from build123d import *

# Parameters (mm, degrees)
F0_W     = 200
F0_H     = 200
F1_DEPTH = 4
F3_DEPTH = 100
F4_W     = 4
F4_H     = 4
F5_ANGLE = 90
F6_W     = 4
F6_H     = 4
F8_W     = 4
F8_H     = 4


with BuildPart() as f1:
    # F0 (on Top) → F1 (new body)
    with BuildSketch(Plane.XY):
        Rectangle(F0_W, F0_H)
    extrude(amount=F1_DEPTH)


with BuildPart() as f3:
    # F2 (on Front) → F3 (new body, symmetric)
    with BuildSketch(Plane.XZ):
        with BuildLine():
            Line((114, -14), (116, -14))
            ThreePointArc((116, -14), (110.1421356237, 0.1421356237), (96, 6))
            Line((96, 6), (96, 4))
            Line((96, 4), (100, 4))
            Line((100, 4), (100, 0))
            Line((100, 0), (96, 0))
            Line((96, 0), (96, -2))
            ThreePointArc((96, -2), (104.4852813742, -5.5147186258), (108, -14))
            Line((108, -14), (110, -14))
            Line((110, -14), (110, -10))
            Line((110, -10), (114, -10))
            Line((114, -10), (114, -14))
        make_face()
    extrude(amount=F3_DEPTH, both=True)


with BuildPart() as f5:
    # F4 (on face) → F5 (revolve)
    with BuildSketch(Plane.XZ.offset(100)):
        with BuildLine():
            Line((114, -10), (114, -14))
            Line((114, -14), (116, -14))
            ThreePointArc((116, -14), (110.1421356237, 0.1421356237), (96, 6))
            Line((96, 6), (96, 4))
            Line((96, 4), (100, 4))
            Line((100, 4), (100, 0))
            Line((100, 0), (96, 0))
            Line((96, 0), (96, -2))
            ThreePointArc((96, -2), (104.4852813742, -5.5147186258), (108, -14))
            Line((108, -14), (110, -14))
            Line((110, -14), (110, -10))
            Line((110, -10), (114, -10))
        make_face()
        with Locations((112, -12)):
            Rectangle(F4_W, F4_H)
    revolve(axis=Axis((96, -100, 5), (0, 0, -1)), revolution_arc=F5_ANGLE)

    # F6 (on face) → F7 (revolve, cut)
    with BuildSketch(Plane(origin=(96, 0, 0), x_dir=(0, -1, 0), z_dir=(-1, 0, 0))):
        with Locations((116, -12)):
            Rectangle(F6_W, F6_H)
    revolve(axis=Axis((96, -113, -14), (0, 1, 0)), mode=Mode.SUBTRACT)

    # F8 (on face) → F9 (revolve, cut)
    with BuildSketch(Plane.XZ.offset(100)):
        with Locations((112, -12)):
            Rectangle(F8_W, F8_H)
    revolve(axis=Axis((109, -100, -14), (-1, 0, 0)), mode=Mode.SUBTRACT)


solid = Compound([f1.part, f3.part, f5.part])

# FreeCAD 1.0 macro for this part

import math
import FreeCAD as App
import Part
import Sketcher

V = App.Vector


def add_polygon(sketch, points):
    """Adds a closed chain of lines whose ends are joined by coincident constraints."""
    first, n = sketch.GeometryCount, len(points)
    for a, b in zip(points, points[1:] + points[:1]):
        sketch.addGeometry(Part.LineSegment(App.Vector(*a, 0), App.Vector(*b, 0)), False)
    for i in range(n):
        sketch.addConstraint(Sketcher.Constraint("Coincident", first + i, 2, first + (i + 1) % n, 1))

doc = App.newDocument("Part")
params = doc.addObject("Spreadsheet::Sheet", "Params")
for row, (alias, value) in enumerate([
    ("sketch1_width", "200 mm"),
    ("pad1_length", "4 mm"),
    ("sketch2_radius", "20 mm"),
    ("sketch2_radius2", "12 mm"),
    ("sketch2_width", "2 mm"),
    ("pad2_length", "200 mm"),
    ("sketch3_radius", "20 mm"),
    ("sketch3_radius2", "12 mm"),
    ("sketch3_width", "4 mm"),
    ("revolution_angle", "90 deg"),
    ("sketch4_width", "4 mm"),
    ("groove_angle", "360 deg"),
    ("sketch5_width", "4 mm"),
    ("groove2_angle", "360 deg"),
], start=1):
    params.set(f"A{row}", alias)
    params.set(f"B{row}", "=" + value)
    params.setAlias(f"B{row}", alias)

body = doc.addObject("PartDesign::Body", "Body")

sketch1 = body.newObject("Sketcher::SketchObject", "Sketch")
sketch1.AttachmentSupport = (doc.getObject("XY_Plane"), [""])
sketch1.MapMode = "FlatFace"
add_polygon(sketch1, [(-100, 100), (-100, -100), (100, -100), (100, 100)])
sketch1.addConstraint([
    Sketcher.Constraint("Vertical", 0),
    Sketcher.Constraint("Horizontal", 1),
    Sketcher.Constraint("Vertical", 2),
    Sketcher.Constraint("Horizontal", 3),
    Sketcher.Constraint("Symmetric", 0, 2, 2, 2, -1, 1),
    Sketcher.Constraint("Equal", 3, 0),
    Sketcher.Constraint("DistanceX", 1, 1, 1, 2, 200.0),
])
sketch1.setExpression("Constraints[10]", "Params.sketch1_width")
pad1 = body.newObject("PartDesign::Pad", "Pad")
pad1.Profile = sketch1
pad1.setExpression("Length", "Params.pad1_length")
body2 = doc.addObject("PartDesign::Body", "Body001")

sketch2 = body2.newObject("Sketcher::SketchObject", "Sketch001")
sketch2.AttachmentSupport = (doc.getObject("XZ_Plane001"), [""])
sketch2.MapMode = "FlatFace"
sketch2.addGeometry([
    Part.LineSegment(V(114, -14, 0), V(116, -14, 0)),
    Part.ArcOfCircle(Part.Circle(V(96, -14, 0), V(0, 0, 1), 20), math.radians(0), math.radians(90)),
    Part.LineSegment(V(96, 6, 0), V(96, 4, 0)),
    Part.LineSegment(V(96, 4, 0), V(100, 4, 0)),
    Part.LineSegment(V(100, 4, 0), V(100, 0, 0)),
    Part.LineSegment(V(100, 0, 0), V(96, 0, 0)),
    Part.LineSegment(V(96, 0, 0), V(96, -2, 0)),
    Part.ArcOfCircle(Part.Circle(V(96, -14, 0), V(0, 0, 1), 12), math.radians(0), math.radians(90)),
    Part.LineSegment(V(108, -14, 0), V(110, -14, 0)),
    Part.LineSegment(V(110, -14, 0), V(110, -10, 0)),
    Part.LineSegment(V(110, -10, 0), V(114, -10, 0)),
    Part.LineSegment(V(114, -10, 0), V(114, -14, 0)),
], False)
sketch2.addConstraint([
    Sketcher.Constraint("Coincident", 0, 2, 1, 1),
    Sketcher.Constraint("Coincident", 1, 2, 2, 1),
    Sketcher.Constraint("Coincident", 2, 2, 3, 1),
    Sketcher.Constraint("Coincident", 3, 2, 4, 1),
    Sketcher.Constraint("Coincident", 4, 2, 5, 1),
    Sketcher.Constraint("Coincident", 5, 2, 6, 1),
    Sketcher.Constraint("Coincident", 6, 2, 7, 2),
    Sketcher.Constraint("Coincident", 7, 1, 8, 1),
    Sketcher.Constraint("Coincident", 8, 2, 9, 1),
    Sketcher.Constraint("Coincident", 9, 2, 10, 1),
    Sketcher.Constraint("Coincident", 10, 2, 11, 1),
    Sketcher.Constraint("Coincident", 11, 2, 0, 1),
    Sketcher.Constraint("Horizontal", 0),
    Sketcher.Constraint("Vertical", 2),
    Sketcher.Constraint("Horizontal", 3),
    Sketcher.Constraint("Vertical", 4),
    Sketcher.Constraint("Horizontal", 5),
    Sketcher.Constraint("Vertical", 6),
    Sketcher.Constraint("Horizontal", 8),
    Sketcher.Constraint("Vertical", 9),
    Sketcher.Constraint("Horizontal", 10),
    Sketcher.Constraint("Vertical", 11),
    Sketcher.Constraint("Coincident", 7, 3, 1, 3),
    Sketcher.Constraint("PointOnObject", 4, 2, -1),
    Sketcher.Constraint("Horizontal", 7, 3, 0, 2),
    Sketcher.Constraint("Horizontal", 0, 2, 7, 1),
    Sketcher.Constraint("Vertical", 7, 3, 1, 2),
    Sketcher.Constraint("Vertical", 2, 2, 5, 2),
    Sketcher.Constraint("Equal", 0, 8),
    Sketcher.Constraint("Equal", 5, 10),
    Sketcher.Constraint("Equal", 8, 2),
    Sketcher.Constraint("Equal", 10, 4),
    Sketcher.Constraint("Equal", 4, 9),
    Sketcher.Constraint("Radius", 1, 20.0),
    Sketcher.Constraint("Radius", 7, 12.0),
    Sketcher.Constraint("DistanceX", 0, 1, 0, 2, 2.0),
    Sketcher.Constraint("DistanceX", -1, 1, 1, 3, 96.0),
])
sketch2.setExpression("Constraints[33]", "Params.sketch2_radius")
sketch2.setExpression("Constraints[34]", "Params.sketch2_radius2")
sketch2.setExpression("Constraints[35]", "Params.sketch2_width")
pad2 = body2.newObject("PartDesign::Pad", "Pad001")
pad2.Profile = sketch2
pad2.setExpression("Length", "Params.pad2_length")
pad2.Midplane = True
body3 = doc.addObject("PartDesign::Body", "Body002")

sketch3 = body3.newObject("Sketcher::SketchObject", "Sketch002")
sketch3.AttachmentSupport = (doc.getObject("XZ_Plane002"), [""])
sketch3.MapMode = "FlatFace"
sketch3.AttachmentOffset = App.Placement(V(0, 0, 100), App.Rotation())
sketch3.addGeometry([
    Part.ArcOfCircle(Part.Circle(V(96, -14, 0), V(0, 0, 1), 20), math.radians(0), math.radians(90)),
    Part.LineSegment(V(96, 6, 0), V(96, 4, 0)),
    Part.LineSegment(V(96, 4, 0), V(100, 4, 0)),
    Part.LineSegment(V(100, 4, 0), V(100, 0, 0)),
    Part.LineSegment(V(100, 0, 0), V(96, 0, 0)),
    Part.LineSegment(V(96, 0, 0), V(96, -2, 0)),
    Part.ArcOfCircle(Part.Circle(V(96, -14, 0), V(0, 0, 1), 12), math.radians(0), math.radians(90)),
    Part.LineSegment(V(108, -14, 0), V(116, -14, 0)),
], False)
sketch3.addGeometry(Part.LineSegment(V(96, 6, 0), V(96, -14, 0)), True)
sketch3.addConstraint([
    Sketcher.Constraint("Coincident", 0, 2, 1, 1),
    Sketcher.Constraint("Coincident", 1, 2, 2, 1),
    Sketcher.Constraint("Coincident", 2, 2, 3, 1),
    Sketcher.Constraint("Coincident", 3, 2, 4, 1),
    Sketcher.Constraint("Coincident", 4, 2, 5, 1),
    Sketcher.Constraint("Coincident", 5, 2, 6, 2),
    Sketcher.Constraint("Coincident", 6, 1, 7, 1),
    Sketcher.Constraint("Coincident", 7, 2, 0, 1),
    Sketcher.Constraint("Vertical", 1),
    Sketcher.Constraint("Horizontal", 2),
    Sketcher.Constraint("Vertical", 3),
    Sketcher.Constraint("Horizontal", 4),
    Sketcher.Constraint("Vertical", 5),
    Sketcher.Constraint("Horizontal", 7),
    Sketcher.Constraint("Vertical", 8),
    Sketcher.Constraint("Coincident", 6, 3, 0, 3),
    Sketcher.Constraint("Coincident", 8, 1, 0, 2),
    Sketcher.Constraint("Coincident", 8, 2, 0, 3),
    Sketcher.Constraint("PointOnObject", 3, 2, -1),
    Sketcher.Constraint("Horizontal", 0, 3, 6, 1),
    Sketcher.Constraint("Vertical", 1, 2, 4, 2),
    Sketcher.Constraint("Equal", 4, 3),
    Sketcher.Constraint("Equal", 1, 5),
    Sketcher.Constraint("Radius", 0, 20.0),
    Sketcher.Constraint("Radius", 6, 12.0),
    Sketcher.Constraint("DistanceX", 2, 1, 2, 2, 4.0),
    Sketcher.Constraint("DistanceX", -1, 1, 0, 3, 96.0),
])
sketch3.setExpression("Constraints[23]", "Params.sketch3_radius")
sketch3.setExpression("Constraints[24]", "Params.sketch3_radius2")
sketch3.setExpression("Constraints[25]", "Params.sketch3_width")
revolution = body3.newObject("PartDesign::Revolution", "Revolution")
revolution.Profile = sketch3
revolution.ReferenceAxis = (sketch3, ["Axis0"])
revolution.setExpression("Angle", "Params.revolution_angle")

sketch4 = body3.newObject("Sketcher::SketchObject", "Sketch003")
sketch4.AttachmentSupport = (doc.getObject("YZ_Plane002"), [""])
sketch4.MapMode = "FlatFace"
sketch4.AttachmentOffset = App.Placement(V(0, 0, 96), App.Rotation())
add_polygon(sketch4, [(-114, -10), (-114, -14), (-118, -14), (-118, -10)])
sketch4.addGeometry(Part.LineSegment(V(-118, -14, 0), V(-114, -14, 0)), True)
sketch4.addConstraint([
    Sketcher.Constraint("Vertical", 0),
    Sketcher.Constraint("Horizontal", 1),
    Sketcher.Constraint("Vertical", 2),
    Sketcher.Constraint("Horizontal", 3),
    Sketcher.Constraint("Horizontal", 4),
    Sketcher.Constraint("Coincident", 4, 1, 1, 2),
    Sketcher.Constraint("Vertical", 3, 2, 4, 2),
    Sketcher.Constraint("Equal", 4, 0),
    Sketcher.Constraint("DistanceX", 1, 2, 1, 1, 4.0),
    Sketcher.Constraint("DistanceX", 0, 2, -1, 1, 114.0),
    Sketcher.Constraint("DistanceY", 0, 2, -1, 1, 14.0),
])
sketch4.setExpression("Constraints[12]", "Params.sketch4_width")
groove = body3.newObject("PartDesign::Groove", "Groove")
groove.Profile = sketch4
groove.ReferenceAxis = (sketch4, ["Axis0"])
groove.setExpression("Angle", "Params.groove_angle")

sketch5 = body3.newObject("Sketcher::SketchObject", "Sketch004")
sketch5.AttachmentSupport = (doc.getObject("XZ_Plane002"), [""])
sketch5.MapMode = "FlatFace"
sketch5.AttachmentOffset = App.Placement(V(0, 0, 100), App.Rotation())
add_polygon(sketch5, [(110, -10), (110, -14), (114, -14), (114, -10)])
sketch5.addGeometry(Part.LineSegment(V(114, -14, 0), V(110, -14, 0)), True)
sketch5.addConstraint([
    Sketcher.Constraint("Vertical", 0),
    Sketcher.Constraint("Horizontal", 1),
    Sketcher.Constraint("Vertical", 2),
    Sketcher.Constraint("Horizontal", 3),
    Sketcher.Constraint("Horizontal", 4),
    Sketcher.Constraint("Coincident", 4, 1, 1, 2),
    Sketcher.Constraint("Vertical", 3, 2, 4, 2),
    Sketcher.Constraint("Equal", 4, 0),
    Sketcher.Constraint("DistanceX", 1, 1, 1, 2, 4.0),
    Sketcher.Constraint("DistanceX", -1, 1, 0, 2, 110.0),
    Sketcher.Constraint("DistanceY", 0, 2, -1, 1, 14.0),
])
sketch5.setExpression("Constraints[12]", "Params.sketch5_width")
groove2 = body3.newObject("PartDesign::Groove", "Groove001")
groove2.Profile = sketch5
groove2.ReferenceAxis = (sketch5, ["Axis0"])
groove2.setExpression("Angle", "Params.groove2_angle")

doc.recompute()
